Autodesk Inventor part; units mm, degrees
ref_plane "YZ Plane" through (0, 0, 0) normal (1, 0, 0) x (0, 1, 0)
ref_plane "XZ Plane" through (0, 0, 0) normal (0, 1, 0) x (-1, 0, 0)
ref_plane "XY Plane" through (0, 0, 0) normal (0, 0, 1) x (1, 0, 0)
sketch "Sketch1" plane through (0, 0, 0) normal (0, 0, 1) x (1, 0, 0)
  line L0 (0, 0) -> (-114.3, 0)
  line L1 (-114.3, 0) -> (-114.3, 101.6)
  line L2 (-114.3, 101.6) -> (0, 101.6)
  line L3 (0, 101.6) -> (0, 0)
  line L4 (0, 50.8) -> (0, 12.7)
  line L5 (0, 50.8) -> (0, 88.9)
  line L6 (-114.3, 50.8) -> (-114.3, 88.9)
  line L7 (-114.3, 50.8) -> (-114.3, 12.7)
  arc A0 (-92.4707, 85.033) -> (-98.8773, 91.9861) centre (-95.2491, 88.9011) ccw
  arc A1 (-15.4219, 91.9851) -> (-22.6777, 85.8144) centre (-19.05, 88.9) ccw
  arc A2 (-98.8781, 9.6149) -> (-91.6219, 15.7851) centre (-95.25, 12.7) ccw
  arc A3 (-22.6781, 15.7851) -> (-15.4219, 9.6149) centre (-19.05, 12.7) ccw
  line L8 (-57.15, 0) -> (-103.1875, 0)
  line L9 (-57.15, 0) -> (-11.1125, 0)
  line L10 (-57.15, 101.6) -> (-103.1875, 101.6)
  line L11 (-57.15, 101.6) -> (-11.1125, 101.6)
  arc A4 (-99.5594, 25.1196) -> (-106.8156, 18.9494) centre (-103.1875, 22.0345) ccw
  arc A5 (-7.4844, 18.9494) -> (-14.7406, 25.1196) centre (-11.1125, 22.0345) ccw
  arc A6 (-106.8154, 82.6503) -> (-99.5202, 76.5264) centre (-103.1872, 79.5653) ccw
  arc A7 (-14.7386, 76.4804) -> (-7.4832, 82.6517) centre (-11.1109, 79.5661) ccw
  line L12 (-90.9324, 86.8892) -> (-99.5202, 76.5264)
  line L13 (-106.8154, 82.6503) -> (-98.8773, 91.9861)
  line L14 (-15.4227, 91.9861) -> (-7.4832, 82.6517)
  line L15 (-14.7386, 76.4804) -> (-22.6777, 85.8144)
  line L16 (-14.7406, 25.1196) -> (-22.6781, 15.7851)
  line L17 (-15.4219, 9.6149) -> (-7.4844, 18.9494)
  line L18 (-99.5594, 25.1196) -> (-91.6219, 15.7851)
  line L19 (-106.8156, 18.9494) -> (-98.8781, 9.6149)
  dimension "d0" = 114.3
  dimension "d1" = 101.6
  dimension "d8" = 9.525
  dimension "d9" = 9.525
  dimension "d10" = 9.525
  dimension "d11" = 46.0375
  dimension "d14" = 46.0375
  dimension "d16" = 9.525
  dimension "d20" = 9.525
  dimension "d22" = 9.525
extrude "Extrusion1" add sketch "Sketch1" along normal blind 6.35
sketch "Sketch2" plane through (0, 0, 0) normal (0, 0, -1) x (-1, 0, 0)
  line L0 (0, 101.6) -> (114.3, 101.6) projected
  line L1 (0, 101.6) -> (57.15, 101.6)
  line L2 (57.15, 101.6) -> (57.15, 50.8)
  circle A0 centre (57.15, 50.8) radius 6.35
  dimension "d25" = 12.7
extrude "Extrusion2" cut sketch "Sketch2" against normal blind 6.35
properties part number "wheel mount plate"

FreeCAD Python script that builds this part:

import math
import FreeCAD as App
import Part
import Sketcher
from FreeCAD import Vector
Q = App.Units.Quantity

doc = App.newDocument("Part")
params = doc.addObject("Spreadsheet::Sheet", "Params")
for row, (alias, value) in enumerate([
    ("sketch1_height", "4 in"),
    ("sketch1_width", "4.5 in"),
    ("sketch1_radius", "0.1875 in"),
    ("sketch1_radius2", "0.1875 in"),
    ("sketch1_radius3", "0.1875 in"),
    ("pad1_length", "0.25 in"),
    ("sketch2_diameter", "0.5 in"),
    ("pocket1_length", "0.25 in"),
], start=1):
    params.set(f"A{row}", alias)
    params.set(f"B{row}", "=" + value)
    params.setAlias(f"B{row}", alias)

body = doc.addObject("PartDesign::Body", "Body")

# Sketch on XY plane
sketch1 = body.newObject("Sketcher::SketchObject", "Sketch")
sketch1.AttachmentSupport = (doc.getObject("XY_Plane"), [""])
sketch1.MapMode = "FlatFace"
sketch1.addGeometry([
    Part.LineSegment(Vector(-114.3, 0, 0), Vector(0, 0, 0)),  # 0
    Part.LineSegment(Vector(0, 0, 0), Vector(0, 101.6, 0)),  # 1
    Part.LineSegment(Vector(0, 101.6, 0), Vector(-114.3, 101.6, 0)),  # 2
    Part.LineSegment(Vector(-114.3, 101.6, 0), Vector(-114.3, 0, 0)),  # 3
    Part.ArcOfCircle(Part.Circle(Vector(-95.25, 12.7, 0), Vector(0, 0, 1), 4.762452), math.radians(-139.624326), math.radians(40.375674)),  # 4
    Part.LineSegment(Vector(-98.8781, 9.6149, 0), Vector(-106.8156, 18.9494, 0)),  # 5
    Part.ArcOfCircle(Part.Circle(Vector(-103.1875, 22.0345, 0), Vector(0, 0, 1), 4.762452), math.radians(40.375674), math.radians(220.375674)),  # 6
    Part.LineSegment(Vector(-99.5594, 25.1196, 0), Vector(-91.6219, 15.7851, 0)),  # 7
    Part.ArcOfCircle(Part.Circle(Vector(-19.05, 12.7, 0), Vector(0, 0, 1), 4.762452), math.radians(139.624326), math.radians(319.624326)),  # 8
    Part.LineSegment(Vector(-22.6781, 15.7851, 0), Vector(-14.7406, 25.1196, 0)),  # 9
    Part.ArcOfCircle(Part.Circle(Vector(-11.1125, 22.0345, 0), Vector(0, 0, 1), 4.762452), math.radians(-40.375674), math.radians(139.624326)),  # 10
    Part.LineSegment(Vector(-7.4844, 18.9494, 0), Vector(-15.4219, 9.6149, 0)),  # 11
    Part.ArcOfCircle(Part.Circle(Vector(-95.2491, 88.9011, 0), Vector(0, 0, 1), 4.762531), math.radians(-54.310862), math.radians(139.626022)),  # 12
    Part.LineSegment(Vector(-92.470676, 85.03298, 0), Vector(-99.5202, 76.5264, 0)),  # 13
    Part.ArcOfCircle(Part.Circle(Vector(-103.1872, 79.5653, 0), Vector(0, 0, 1), 4.762464), math.radians(139.626022), math.radians(320.350928)),  # 14
    Part.LineSegment(Vector(-106.8154, 82.6503, 0), Vector(-98.8773, 91.9861, 0)),  # 15
    Part.ArcOfCircle(Part.Circle(Vector(-19.05, 88.9, 0), Vector(0, 0, 1), 4.762452), math.radians(40.375674), math.radians(220.383374)),  # 16
    Part.LineSegment(Vector(-15.4219, 91.9851, 0), Vector(-7.4832, 82.6517, 0)),  # 17
    Part.ArcOfCircle(Part.Circle(Vector(-11.1109, 79.5661, 0), Vector(0, 0, 1), 4.762536), math.radians(-139.61571), math.radians(40.383374)),  # 18
    Part.LineSegment(Vector(-14.7386, 76.4804, 0), Vector(-22.6777, 85.8144, 0)),  # 19
], False)
sketch1.addConstraint([
    Sketcher.Constraint("Coincident", 0, 2, 1, 1),
    Sketcher.Constraint("Coincident", 1, 2, 2, 1),
    Sketcher.Constraint("Coincident", 2, 2, 3, 1),
    Sketcher.Constraint("Coincident", 3, 2, 0, 1),
    Sketcher.Constraint("Coincident", 4, 1, 5, 1),
    Sketcher.Constraint("Coincident", 5, 2, 6, 2),
    Sketcher.Constraint("Coincident", 6, 1, 7, 1),
    Sketcher.Constraint("Coincident", 7, 2, 4, 2),
    Sketcher.Constraint("Coincident", 8, 1, 9, 1),
    Sketcher.Constraint("Coincident", 9, 2, 10, 2),
    Sketcher.Constraint("Coincident", 10, 1, 11, 1),
    Sketcher.Constraint("Coincident", 11, 2, 8, 2),
    Sketcher.Constraint("Coincident", 12, 1, 13, 1),
    Sketcher.Constraint("Coincident", 13, 2, 14, 2),
    Sketcher.Constraint("Coincident", 14, 1, 15, 1),
    Sketcher.Constraint("Coincident", 15, 2, 12, 2),
    Sketcher.Constraint("Coincident", 16, 1, 17, 1),
    Sketcher.Constraint("Coincident", 17, 2, 18, 2),
    Sketcher.Constraint("Coincident", 18, 1, 19, 1),
    Sketcher.Constraint("Coincident", 19, 2, 16, 2),
    Sketcher.Constraint("Horizontal", 0),
    Sketcher.Constraint("Vertical", 1),
    Sketcher.Constraint("Horizontal", 2),
    Sketcher.Constraint("Vertical", 3),
    Sketcher.Constraint("Coincident", 0, 2, -1, 1),
    Sketcher.Constraint("DistanceY", 1, 1, 1, 2, Q("4 in")),
    Sketcher.Constraint("DistanceX", 0, 1, 0, 2, Q("4.5 in")),
    Sketcher.Constraint("Radius", 4, Q("0.1875 in")),
    Sketcher.Constraint("Radius", 6, Q("0.1875 in")),
    Sketcher.Constraint("Radius", 8, Q("0.1875 in")),
    Sketcher.Constraint("Radius", 10, Q("0.1875 in")),
    Sketcher.Constraint("Radius", 12, Q("0.1875 in")),
    Sketcher.Constraint("Radius", 14, Q("0.1875 in")),
    Sketcher.Constraint("Radius", 16, Q("0.1875 in")),
    Sketcher.Constraint("Radius", 18, Q("0.1875 in")),
    Sketcher.Constraint("DistanceX", 4, 3, 8, 3, Q("3 in")),
    Sketcher.Constraint("DistanceX", 6, 3, 14, 3, Q("0 in")),
    Sketcher.Constraint("DistanceY", 8, 3, 16, 3, Q("3 in")),
    Sketcher.Constraint("DistanceY", -1, 1, 4, 3, Q("0.5 in")),
    Sketcher.Constraint("DistanceY", -1, 1, 8, 3, Q("0.5 in")),
    Sketcher.Constraint("DistanceX", 4, 3, -1, 1, Q("3.75 in")),
    Sketcher.Constraint("DistanceX", 16, 3, -1, 1, Q("0.75 in")),
    Sketcher.Constraint("DistanceX", 6, 3, -1, 1, Q("4.0625 in")),
    Sketcher.Constraint("DistanceX", 10, 3, -1, 1, Q("0.4375 in")),
    Sketcher.Constraint("DistanceY", -1, 1, 17, 2, Q("3.254 in")),
    Sketcher.Constraint("DistanceY", 6, 3, 14, 3, Q("2.265 in")),
    Sketcher.Constraint("DistanceY", 10, 3, 14, 3, Q("2.265 in")),
    Sketcher.Constraint("DistanceX", 5, 2, 4, 1, Q("0.3125 in")),
    Sketcher.Constraint("DistanceX", 6, 1, 7, 2, Q("0.3125 in")),
    Sketcher.Constraint("DistanceX", 8, 1, 9, 2, Q("0.3125 in")),
    Sketcher.Constraint("DistanceX", 11, 2, 10, 1, Q("0.3125 in")),
    Sketcher.Constraint("DistanceY", 14, 3, 15, 2, Q("0.489 in")),
    Sketcher.Constraint("DistanceY", 18, 3, 19, 2, Q("0.246 in")),
    Sketcher.Constraint("Distance", 5, Q("0.4824 in")),
    Sketcher.Constraint("Distance", 17, Q("0.4824 in")),
    Sketcher.Constraint("DistanceX", 15, 2, -1, 1, Q("3.8928 in")),
    Sketcher.Constraint("DistanceY", 4, 1, 12, 3, Q("3.1215 in")),
    Sketcher.Constraint("DistanceX", 8, 1, 18, 3, Q("0.4554 in")),
    Sketcher.Constraint("DistanceX", 14, 3, 12, 1, Q("0.4219 in")),
    Sketcher.Constraint("DistanceY", 6, 1, 12, 1, Q("2.3588 in")),
    Sketcher.Constraint("DistanceY", 13, 2, 12, 1, Q("0.3349 in")),
    Sketcher.Constraint("DistanceY", 13, 2, 12, 3, Q("0.4872 in")),
    Sketcher.Constraint("DistanceY", 13, 2, 14, 1, Q("0.2411 in")),
    Sketcher.Constraint("DistanceY", 9, 2, 16, 1, Q("2.6325 in")),
    Sketcher.Constraint("DistanceX", 16, 1, 18, 1, Q("0.0269 in")),
    Sketcher.Constraint("DistanceX", 19, 2, 17, 2, Q("0.5982 in")),
    Sketcher.Constraint("DistanceX", 10, 1, -1, 1, 7.4844),
])
sketch1.setExpression("Constraints[25]", "Params.sketch1_height")
sketch1.setExpression("Constraints[26]", "Params.sketch1_width")
sketch1.setExpression("Constraints[27]", "Params.sketch1_radius")
sketch1.setExpression("Constraints[28]", "Params.sketch1_radius2")
sketch1.setExpression("Constraints[29]", "Params.sketch1_radius3")
pad1 = body.newObject("PartDesign::Pad", "Pad")
pad1.Profile = sketch1
pad1.setExpression("Length", "Params.pad1_length")

# Sketch on XY plane
sketch2 = body.newObject("Sketcher::SketchObject", "Sketch001")
sketch2.AttachmentSupport = (doc.getObject("XY_Plane"), [""])
sketch2.MapMode = "FlatFace"
sketch2.addGeometry(Part.Circle(Vector(-57, 51, 0), Vector(0, 0, 1), 6), False)
sketch2.addConstraint([
    Sketcher.Constraint("Diameter", 0, Q("0.5 in")),
    Sketcher.Constraint("DistanceY", -1, 1, 0, 3, Q("2 in")),
    Sketcher.Constraint("DistanceX", 0, 3, -1, 1, Q("2.25 in")),
])
sketch2.setExpression("Constraints[0]", "Params.sketch2_diameter")
pocket1 = body.newObject("PartDesign::Pocket", "Pocket")
pocket1.Profile = sketch2
pocket1.setExpression("Length", "Params.pocket1_length")
pocket1.Reversed = True

doc.recompute()
